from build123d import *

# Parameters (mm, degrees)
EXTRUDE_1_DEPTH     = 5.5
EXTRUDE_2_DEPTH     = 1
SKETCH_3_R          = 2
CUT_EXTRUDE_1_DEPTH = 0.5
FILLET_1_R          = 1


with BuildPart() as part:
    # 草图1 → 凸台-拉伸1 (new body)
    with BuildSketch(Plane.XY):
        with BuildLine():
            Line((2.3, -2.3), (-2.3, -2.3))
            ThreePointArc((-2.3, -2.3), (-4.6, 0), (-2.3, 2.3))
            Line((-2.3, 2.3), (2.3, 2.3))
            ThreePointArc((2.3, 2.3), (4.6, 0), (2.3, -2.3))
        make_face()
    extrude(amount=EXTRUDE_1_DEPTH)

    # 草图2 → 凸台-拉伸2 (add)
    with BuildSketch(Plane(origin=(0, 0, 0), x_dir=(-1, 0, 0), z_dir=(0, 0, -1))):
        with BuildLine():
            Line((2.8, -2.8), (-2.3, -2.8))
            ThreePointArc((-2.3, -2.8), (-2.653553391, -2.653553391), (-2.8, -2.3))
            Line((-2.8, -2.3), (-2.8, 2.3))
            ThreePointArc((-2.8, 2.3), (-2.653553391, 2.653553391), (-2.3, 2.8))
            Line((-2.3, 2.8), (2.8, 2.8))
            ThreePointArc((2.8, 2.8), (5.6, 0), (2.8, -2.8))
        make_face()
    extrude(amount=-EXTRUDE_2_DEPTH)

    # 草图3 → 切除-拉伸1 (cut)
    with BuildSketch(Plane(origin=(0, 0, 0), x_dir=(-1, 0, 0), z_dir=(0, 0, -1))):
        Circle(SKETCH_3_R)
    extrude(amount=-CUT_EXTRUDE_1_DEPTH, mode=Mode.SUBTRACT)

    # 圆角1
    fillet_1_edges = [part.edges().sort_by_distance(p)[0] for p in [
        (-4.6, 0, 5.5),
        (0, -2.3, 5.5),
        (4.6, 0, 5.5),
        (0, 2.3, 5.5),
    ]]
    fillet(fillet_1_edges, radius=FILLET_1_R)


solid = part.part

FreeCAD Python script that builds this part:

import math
import FreeCAD as App
import Part
import Sketcher
from FreeCAD import Vector
Q = App.Units.Quantity


def edges_at(feature, points):
    """Names of the edges that pass closest to the given points."""
    edges = feature.Shape.Edges
    near = lambda p: min(range(len(edges)), key=lambda i: edges[i].distToShape(Part.Vertex(*p))[0])
    return sorted({f"Edge{near(p) + 1}" for p in points})

doc = App.newDocument("Part")
body = doc.addObject("PartDesign::Body", "Body")

sketch1 = body.newObject("Sketcher::SketchObject", "Sketch")
sketch1.AttachmentSupport = (doc.getObject("XY_Plane"), [""])
sketch1.MapMode = "FlatFace"
sketch1.addGeometry([
    Part.LineSegment(Vector(-2.3, -2.3, 0), Vector(2.3, -2.3, 0)),
    Part.ArcOfCircle(Part.Circle(Vector(2.3, 0, 0), Vector(0, 0, 1), 2.3), math.radians(-90), math.radians(90)),
    Part.LineSegment(Vector(2.3, 2.3, 0), Vector(-2.3, 2.3, 0)),
    Part.ArcOfCircle(Part.Circle(Vector(-2.3, 0, 0), Vector(0, 0, 1), 2.3), math.radians(90), math.radians(270)),
], False)
sketch1.addConstraint([
    Sketcher.Constraint("Tangent", 0, 2, 1, 1),
    Sketcher.Constraint("Tangent", 1, 2, 2, 1),
    Sketcher.Constraint("Tangent", 2, 2, 3, 1),
    Sketcher.Constraint("Tangent", 3, 2, 0, 1),
    Sketcher.Constraint("Horizontal", 0),
    Sketcher.Constraint("Horizontal", 2),
    Sketcher.Constraint("Symmetric", 1, 3, 3, 3, -1, 1),
    Sketcher.Constraint("Radius", 1, Q("2.3 mm")),
    Sketcher.Constraint("DistanceX", 0, 1, 0, 2, Q("4.6 mm")),
])
pad1 = body.newObject("PartDesign::Pad", "Pad")
pad1.Profile = sketch1
pad1.Length = 5.5

sketch2 = body.newObject("Sketcher::SketchObject", "Sketch001")
sketch2.AttachmentSupport = (doc.getObject("XY_Plane"), [""])
sketch2.MapMode = "FlatFace"
sketch2.addGeometry([
    Part.LineSegment(Vector(2.3, -2.8, 0), Vector(-2.8, -2.8, 0)),
    Part.ArcOfCircle(Part.Circle(Vector(-2.8, 0, 0), Vector(0, 0, 1), 2.8), math.radians(90), math.radians(270)),
    Part.LineSegment(Vector(-2.8, 2.8, 0), Vector(2.3, 2.8, 0)),
    Part.ArcOfCircle(Part.Circle(Vector(2.3, 2.3, 0), Vector(0, 0, 1), 0.5), math.radians(0), math.radians(90)),
    Part.LineSegment(Vector(2.8, 2.3, 0), Vector(2.8, -2.3, 0)),
    Part.ArcOfCircle(Part.Circle(Vector(2.3, -2.3, 0), Vector(0, 0, 1), 0.5), math.radians(-90), math.radians(0)),
], False)
sketch2.addConstraint([
    Sketcher.Constraint("Tangent", 0, 2, 1, 2),
    Sketcher.Constraint("Tangent", 1, 1, 2, 1),
    Sketcher.Constraint("Tangent", 2, 2, 3, 2),
    Sketcher.Constraint("Tangent", 3, 1, 4, 1),
    Sketcher.Constraint("Tangent", 4, 2, 5, 2),
    Sketcher.Constraint("Tangent", 5, 1, 0, 1),
    Sketcher.Constraint("Horizontal", 0),
    Sketcher.Constraint("Horizontal", 2),
    Sketcher.Constraint("Vertical", 4),
    Sketcher.Constraint("Equal", 3, 5),
    Sketcher.Constraint("PointOnObject", 1, 3, -1),
    Sketcher.Constraint("Radius", 1, Q("2.8 mm")),
    Sketcher.Constraint("Radius", 3, Q("0.5 mm")),
    Sketcher.Constraint("DistanceX", 0, 2, 0, 1, Q("5.1 mm")),
    Sketcher.Constraint("DistanceX", 1, 3, -1, 1, Q("2.8 mm")),
])
pad2 = body.newObject("PartDesign::Pad", "Pad001")
pad2.Profile = sketch2
pad2.Length = 1

sketch3 = body.newObject("Sketcher::SketchObject", "Sketch002")
sketch3.AttachmentSupport = (doc.getObject("XY_Plane"), [""])
sketch3.MapMode = "FlatFace"
sketch3.addGeometry(Part.Circle(Vector(0, 0, 0), Vector(0, 0, 1), 2), False)
sketch3.addConstraint([
    Sketcher.Constraint("Coincident", 0, 3, -1, 1),
    Sketcher.Constraint("Diameter", 0, Q("4 mm")),
])
pocket1 = body.newObject("PartDesign::Pocket", "Pocket")
pocket1.Profile = sketch3
pocket1.Length = 0.5
pocket1.Reversed = True
doc.recompute()

fillet = body.newObject("PartDesign::Fillet", "Fillet")
fillet.Base = (pocket1, edges_at(pocket1, [
    (-4.6, 0, 5.5),
    (0, -2.3, 5.5),
    (4.6, 0, 5.5),
    (0, 2.3, 5.5),
]))
fillet.Radius = 1

doc.recompute()
